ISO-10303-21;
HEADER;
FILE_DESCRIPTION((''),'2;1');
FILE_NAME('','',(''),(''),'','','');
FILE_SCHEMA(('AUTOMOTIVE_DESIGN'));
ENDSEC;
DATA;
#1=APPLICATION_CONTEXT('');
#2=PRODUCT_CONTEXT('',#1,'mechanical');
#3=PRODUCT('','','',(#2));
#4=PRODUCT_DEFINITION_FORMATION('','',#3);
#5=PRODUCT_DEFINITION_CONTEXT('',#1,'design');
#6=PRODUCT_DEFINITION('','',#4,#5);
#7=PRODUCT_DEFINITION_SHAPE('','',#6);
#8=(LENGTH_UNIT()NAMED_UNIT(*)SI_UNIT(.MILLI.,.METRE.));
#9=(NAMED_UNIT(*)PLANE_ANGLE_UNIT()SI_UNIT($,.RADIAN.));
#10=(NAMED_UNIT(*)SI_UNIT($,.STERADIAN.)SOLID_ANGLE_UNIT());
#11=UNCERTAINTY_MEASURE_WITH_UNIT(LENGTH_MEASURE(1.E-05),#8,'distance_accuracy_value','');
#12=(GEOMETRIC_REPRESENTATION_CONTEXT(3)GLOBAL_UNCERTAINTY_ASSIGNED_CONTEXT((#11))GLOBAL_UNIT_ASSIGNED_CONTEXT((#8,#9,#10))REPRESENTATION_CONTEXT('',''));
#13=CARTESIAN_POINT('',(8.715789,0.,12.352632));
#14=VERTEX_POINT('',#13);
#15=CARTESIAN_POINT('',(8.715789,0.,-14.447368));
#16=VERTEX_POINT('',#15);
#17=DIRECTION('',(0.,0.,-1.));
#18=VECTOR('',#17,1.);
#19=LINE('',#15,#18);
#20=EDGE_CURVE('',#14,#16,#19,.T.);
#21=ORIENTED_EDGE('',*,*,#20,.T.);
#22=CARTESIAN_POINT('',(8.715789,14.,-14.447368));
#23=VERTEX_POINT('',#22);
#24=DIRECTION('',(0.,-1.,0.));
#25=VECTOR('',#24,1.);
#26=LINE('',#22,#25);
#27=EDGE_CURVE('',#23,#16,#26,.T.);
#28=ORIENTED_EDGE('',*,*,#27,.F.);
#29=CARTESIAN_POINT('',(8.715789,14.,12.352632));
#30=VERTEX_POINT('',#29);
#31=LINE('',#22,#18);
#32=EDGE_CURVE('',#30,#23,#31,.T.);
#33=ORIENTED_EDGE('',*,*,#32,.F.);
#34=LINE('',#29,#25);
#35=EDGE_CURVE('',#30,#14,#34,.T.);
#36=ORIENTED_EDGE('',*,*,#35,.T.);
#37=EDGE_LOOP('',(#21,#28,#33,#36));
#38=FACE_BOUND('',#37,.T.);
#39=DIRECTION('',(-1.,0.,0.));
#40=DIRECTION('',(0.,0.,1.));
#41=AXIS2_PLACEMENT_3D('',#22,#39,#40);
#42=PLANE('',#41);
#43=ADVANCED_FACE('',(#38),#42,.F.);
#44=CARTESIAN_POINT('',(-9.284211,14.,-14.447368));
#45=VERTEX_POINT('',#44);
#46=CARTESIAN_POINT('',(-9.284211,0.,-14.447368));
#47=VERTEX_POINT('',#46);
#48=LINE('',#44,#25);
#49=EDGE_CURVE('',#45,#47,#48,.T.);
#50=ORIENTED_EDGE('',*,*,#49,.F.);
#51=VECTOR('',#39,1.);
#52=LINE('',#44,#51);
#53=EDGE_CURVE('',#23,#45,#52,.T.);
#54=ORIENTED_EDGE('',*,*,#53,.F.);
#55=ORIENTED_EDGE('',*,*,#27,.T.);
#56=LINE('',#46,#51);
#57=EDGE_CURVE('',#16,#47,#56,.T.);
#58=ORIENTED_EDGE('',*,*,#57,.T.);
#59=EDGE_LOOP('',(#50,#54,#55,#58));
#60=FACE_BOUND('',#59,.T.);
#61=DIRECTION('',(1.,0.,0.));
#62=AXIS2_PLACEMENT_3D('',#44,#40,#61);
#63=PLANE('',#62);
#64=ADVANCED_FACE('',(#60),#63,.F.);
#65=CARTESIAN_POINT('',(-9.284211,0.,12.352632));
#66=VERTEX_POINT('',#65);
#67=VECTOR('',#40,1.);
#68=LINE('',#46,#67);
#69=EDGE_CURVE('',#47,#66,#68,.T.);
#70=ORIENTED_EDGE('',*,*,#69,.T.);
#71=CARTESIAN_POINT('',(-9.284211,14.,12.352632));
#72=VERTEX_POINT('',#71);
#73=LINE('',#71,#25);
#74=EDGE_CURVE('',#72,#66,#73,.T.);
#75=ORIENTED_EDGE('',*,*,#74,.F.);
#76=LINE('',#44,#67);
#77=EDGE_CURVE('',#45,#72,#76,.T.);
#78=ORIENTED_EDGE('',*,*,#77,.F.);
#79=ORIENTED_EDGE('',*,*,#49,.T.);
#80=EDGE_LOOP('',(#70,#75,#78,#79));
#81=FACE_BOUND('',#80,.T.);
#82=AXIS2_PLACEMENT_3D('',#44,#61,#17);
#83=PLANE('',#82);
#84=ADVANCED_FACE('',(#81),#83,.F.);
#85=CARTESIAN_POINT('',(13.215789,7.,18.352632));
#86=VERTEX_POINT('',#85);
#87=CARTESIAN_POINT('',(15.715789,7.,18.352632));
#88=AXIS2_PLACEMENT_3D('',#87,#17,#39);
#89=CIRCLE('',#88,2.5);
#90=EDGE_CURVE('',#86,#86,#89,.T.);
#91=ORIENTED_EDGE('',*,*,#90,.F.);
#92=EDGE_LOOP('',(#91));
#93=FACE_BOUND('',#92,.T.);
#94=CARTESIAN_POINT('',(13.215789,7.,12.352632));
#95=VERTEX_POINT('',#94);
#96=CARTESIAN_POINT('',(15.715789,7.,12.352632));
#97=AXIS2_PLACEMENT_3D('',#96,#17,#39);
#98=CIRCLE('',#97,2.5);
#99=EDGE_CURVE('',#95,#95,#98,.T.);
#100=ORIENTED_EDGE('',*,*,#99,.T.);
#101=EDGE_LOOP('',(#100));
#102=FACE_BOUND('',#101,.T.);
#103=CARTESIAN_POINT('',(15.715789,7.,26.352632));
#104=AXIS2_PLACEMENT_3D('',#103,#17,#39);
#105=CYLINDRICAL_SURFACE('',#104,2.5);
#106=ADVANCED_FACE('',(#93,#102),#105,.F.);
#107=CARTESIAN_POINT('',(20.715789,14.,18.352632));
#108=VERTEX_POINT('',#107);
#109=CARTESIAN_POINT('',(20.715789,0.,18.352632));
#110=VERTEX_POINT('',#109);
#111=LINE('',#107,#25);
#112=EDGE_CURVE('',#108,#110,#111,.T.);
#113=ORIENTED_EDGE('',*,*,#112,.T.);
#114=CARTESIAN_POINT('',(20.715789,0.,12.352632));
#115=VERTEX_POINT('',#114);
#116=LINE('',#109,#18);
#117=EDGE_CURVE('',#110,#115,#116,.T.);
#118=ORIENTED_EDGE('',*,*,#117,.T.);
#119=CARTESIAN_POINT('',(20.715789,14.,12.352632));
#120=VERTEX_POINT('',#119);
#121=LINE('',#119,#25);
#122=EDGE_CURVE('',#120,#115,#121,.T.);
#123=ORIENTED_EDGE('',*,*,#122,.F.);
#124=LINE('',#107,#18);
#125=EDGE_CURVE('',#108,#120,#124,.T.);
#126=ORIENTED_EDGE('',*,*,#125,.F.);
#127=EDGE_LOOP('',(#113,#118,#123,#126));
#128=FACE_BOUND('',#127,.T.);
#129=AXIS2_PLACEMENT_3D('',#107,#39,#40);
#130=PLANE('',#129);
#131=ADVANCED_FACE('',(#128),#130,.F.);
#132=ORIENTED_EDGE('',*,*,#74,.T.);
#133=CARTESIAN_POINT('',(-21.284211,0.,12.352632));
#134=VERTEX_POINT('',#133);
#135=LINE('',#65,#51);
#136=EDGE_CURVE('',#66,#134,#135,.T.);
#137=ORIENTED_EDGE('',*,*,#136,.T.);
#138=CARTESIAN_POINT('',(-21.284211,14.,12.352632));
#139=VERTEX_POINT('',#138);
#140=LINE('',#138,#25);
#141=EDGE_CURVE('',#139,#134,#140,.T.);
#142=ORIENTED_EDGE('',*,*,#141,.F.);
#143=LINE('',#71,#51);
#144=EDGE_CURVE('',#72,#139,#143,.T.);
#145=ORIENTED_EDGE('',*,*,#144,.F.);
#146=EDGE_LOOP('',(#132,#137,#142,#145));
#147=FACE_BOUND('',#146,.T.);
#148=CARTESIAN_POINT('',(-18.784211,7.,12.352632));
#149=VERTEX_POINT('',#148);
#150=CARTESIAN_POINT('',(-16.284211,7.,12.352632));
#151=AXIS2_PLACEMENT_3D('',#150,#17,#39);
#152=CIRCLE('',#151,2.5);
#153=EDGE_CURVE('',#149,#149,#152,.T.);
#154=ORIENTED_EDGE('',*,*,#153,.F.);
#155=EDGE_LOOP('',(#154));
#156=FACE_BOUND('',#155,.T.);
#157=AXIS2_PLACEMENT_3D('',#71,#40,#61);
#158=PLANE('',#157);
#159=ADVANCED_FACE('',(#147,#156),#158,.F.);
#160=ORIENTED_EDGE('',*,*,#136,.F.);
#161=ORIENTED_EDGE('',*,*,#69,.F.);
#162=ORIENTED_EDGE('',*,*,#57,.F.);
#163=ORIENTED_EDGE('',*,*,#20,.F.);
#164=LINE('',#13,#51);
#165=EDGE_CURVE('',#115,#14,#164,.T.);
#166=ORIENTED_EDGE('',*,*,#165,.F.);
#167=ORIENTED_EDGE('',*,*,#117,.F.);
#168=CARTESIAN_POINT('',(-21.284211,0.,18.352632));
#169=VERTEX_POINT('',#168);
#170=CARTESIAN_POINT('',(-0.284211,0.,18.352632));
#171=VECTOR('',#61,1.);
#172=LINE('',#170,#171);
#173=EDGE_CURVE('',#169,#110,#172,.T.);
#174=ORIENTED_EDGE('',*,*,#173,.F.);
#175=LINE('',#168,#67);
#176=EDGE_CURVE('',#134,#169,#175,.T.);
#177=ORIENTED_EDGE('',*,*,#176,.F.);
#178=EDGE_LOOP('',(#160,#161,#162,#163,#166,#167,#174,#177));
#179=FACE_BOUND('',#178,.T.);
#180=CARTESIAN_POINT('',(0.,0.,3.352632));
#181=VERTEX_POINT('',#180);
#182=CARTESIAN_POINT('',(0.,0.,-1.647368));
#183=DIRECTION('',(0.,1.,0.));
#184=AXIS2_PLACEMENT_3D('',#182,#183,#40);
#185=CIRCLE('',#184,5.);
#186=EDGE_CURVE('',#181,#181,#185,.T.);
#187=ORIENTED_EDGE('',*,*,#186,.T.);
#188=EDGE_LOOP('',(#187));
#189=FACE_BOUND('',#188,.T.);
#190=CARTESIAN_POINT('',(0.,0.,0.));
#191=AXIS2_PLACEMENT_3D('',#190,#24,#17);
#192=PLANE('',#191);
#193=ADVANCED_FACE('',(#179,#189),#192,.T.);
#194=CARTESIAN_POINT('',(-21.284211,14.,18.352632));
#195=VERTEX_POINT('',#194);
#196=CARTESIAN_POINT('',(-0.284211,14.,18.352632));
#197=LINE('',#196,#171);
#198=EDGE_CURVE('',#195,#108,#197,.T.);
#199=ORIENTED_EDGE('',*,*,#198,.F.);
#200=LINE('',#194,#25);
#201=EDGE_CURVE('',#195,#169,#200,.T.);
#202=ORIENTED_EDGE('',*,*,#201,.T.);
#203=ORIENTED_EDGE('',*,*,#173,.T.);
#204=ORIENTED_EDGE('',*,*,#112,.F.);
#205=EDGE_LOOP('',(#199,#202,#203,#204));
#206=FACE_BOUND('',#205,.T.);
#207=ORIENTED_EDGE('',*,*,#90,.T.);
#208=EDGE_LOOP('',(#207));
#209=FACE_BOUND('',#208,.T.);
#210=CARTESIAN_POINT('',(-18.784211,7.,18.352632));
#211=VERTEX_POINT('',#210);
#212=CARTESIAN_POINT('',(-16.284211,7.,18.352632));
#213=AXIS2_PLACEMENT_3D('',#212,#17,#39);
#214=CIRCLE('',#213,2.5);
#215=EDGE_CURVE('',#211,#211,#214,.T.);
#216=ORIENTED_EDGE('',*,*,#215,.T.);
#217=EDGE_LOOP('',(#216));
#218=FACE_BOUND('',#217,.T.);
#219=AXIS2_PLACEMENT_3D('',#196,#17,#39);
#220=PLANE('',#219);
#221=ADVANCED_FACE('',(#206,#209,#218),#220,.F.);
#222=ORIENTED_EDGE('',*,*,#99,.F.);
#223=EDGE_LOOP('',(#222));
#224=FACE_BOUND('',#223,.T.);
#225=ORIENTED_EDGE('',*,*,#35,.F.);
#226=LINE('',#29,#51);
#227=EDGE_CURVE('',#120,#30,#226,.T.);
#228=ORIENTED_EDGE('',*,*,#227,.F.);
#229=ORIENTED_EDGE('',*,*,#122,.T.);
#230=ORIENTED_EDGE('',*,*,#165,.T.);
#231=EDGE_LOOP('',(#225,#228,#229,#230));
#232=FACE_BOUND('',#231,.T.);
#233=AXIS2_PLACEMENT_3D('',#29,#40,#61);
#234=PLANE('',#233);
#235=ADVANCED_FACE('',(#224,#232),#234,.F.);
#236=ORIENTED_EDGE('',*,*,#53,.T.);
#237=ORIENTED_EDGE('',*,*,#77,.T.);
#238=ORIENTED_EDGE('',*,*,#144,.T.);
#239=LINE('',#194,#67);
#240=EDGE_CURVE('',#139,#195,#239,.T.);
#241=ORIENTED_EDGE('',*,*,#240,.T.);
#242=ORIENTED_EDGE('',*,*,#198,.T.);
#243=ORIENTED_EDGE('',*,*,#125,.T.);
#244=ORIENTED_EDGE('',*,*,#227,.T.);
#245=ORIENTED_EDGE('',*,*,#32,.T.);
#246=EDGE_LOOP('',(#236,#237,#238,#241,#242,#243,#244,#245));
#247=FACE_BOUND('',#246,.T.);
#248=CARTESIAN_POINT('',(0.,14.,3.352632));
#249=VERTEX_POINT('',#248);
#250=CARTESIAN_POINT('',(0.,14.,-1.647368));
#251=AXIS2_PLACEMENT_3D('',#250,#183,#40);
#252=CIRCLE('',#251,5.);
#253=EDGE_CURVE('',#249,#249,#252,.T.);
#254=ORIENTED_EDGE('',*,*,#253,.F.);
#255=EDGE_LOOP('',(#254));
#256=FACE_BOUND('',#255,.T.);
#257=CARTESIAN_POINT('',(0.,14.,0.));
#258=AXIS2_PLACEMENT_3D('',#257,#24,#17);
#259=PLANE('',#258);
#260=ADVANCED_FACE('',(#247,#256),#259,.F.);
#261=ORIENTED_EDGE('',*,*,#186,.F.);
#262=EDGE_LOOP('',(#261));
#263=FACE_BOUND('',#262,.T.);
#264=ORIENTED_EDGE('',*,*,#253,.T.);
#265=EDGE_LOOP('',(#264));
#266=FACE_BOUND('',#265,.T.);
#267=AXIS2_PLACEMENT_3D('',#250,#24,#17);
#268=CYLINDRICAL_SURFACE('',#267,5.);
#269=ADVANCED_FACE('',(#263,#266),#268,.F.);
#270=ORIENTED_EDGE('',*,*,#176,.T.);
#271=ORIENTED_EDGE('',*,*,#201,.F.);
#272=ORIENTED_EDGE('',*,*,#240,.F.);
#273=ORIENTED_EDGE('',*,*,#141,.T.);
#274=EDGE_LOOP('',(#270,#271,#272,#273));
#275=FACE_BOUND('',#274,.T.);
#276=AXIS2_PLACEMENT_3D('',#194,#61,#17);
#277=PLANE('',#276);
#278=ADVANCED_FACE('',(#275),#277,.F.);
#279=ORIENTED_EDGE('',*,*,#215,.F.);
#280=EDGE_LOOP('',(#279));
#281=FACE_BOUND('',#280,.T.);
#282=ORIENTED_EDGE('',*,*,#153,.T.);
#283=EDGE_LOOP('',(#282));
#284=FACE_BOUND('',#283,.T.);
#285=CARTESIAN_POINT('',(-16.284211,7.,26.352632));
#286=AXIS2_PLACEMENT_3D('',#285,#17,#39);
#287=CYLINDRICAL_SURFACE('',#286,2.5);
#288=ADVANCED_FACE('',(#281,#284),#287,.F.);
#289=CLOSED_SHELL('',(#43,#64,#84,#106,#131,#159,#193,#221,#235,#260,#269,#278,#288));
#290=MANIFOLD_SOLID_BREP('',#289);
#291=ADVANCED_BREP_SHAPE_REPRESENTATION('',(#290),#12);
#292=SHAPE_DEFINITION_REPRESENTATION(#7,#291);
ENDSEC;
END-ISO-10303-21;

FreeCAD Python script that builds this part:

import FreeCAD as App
import Part
import Sketcher
Q = App.Units.Quantity

doc = App.newDocument("Part")
body = doc.addObject("PartDesign::Body", "Body")

# Sketch on XZ plane
sketch1 = body.newObject("Sketcher::SketchObject", "Sketch")
sketch1.AttachmentSupport = (doc.getObject("XZ_Plane"), [""])
sketch1.MapMode = "FlatFace"
sketch1.addGeometry(Part.LineSegment(App.Vector(8.715789, -14.447368, 0), App.Vector(-9.284211, -14.447368, 0)), False)
sketch1.addGeometry(Part.LineSegment(App.Vector(-9.284211, -14.447368, 0), App.Vector(-9.284211, 12.352632, 0)), False)
sketch1.addGeometry(Part.LineSegment(App.Vector(-9.284211, 12.352632, 0), App.Vector(-21.284211, 12.352632, 0)), False)
sketch1.addGeometry(Part.LineSegment(App.Vector(-21.284211, 12.352632, 0), App.Vector(-21.284211, 18.352632, 0)), False)
sketch1.addGeometry(Part.LineSegment(App.Vector(-21.284211, 18.352632, 0), App.Vector(20.715789, 18.352632, 0)), False)
sketch1.addGeometry(Part.LineSegment(App.Vector(20.715789, 18.352632, 0), App.Vector(20.715789, 12.352632, 0)), False)
sketch1.addGeometry(Part.LineSegment(App.Vector(20.715789, 12.352632, 0), App.Vector(8.715789, 12.352632, 0)), False)
sketch1.addGeometry(Part.LineSegment(App.Vector(8.715789, 12.352632, 0), App.Vector(8.715789, -14.447368, 0)), False)
sketch1.addGeometry(Part.Circle(App.Vector(0, -1.647368, 0), App.Vector(0, 0, 1), 5), False)
sketch1.addConstraint(Sketcher.Constraint("Coincident", 0, 2, 1, 1))
sketch1.addConstraint(Sketcher.Constraint("Coincident", 1, 2, 2, 1))
sketch1.addConstraint(Sketcher.Constraint("Coincident", 2, 2, 3, 1))
sketch1.addConstraint(Sketcher.Constraint("Coincident", 3, 2, 4, 1))
sketch1.addConstraint(Sketcher.Constraint("Coincident", 4, 2, 5, 1))
sketch1.addConstraint(Sketcher.Constraint("Coincident", 5, 2, 6, 1))
sketch1.addConstraint(Sketcher.Constraint("Coincident", 6, 2, 7, 1))
sketch1.addConstraint(Sketcher.Constraint("Coincident", 7, 2, 0, 1))
sketch1.addConstraint(Sketcher.Constraint("Horizontal", 0))
sketch1.addConstraint(Sketcher.Constraint("Vertical", 1))
sketch1.addConstraint(Sketcher.Constraint("Horizontal", 2))
sketch1.addConstraint(Sketcher.Constraint("Vertical", 3))
sketch1.addConstraint(Sketcher.Constraint("Horizontal", 4))
sketch1.addConstraint(Sketcher.Constraint("Vertical", 5))
sketch1.addConstraint(Sketcher.Constraint("Horizontal", 6))
sketch1.addConstraint(Sketcher.Constraint("Vertical", 7))
sketch1.addConstraint(Sketcher.Constraint("PointOnObject", 8, 3, -2))
sketch1.addConstraint(Sketcher.Constraint("Horizontal", 2, 2, 5, 2))
sketch1.addConstraint(Sketcher.Constraint("Equal", 2, 6))
sketch1.addConstraint(Sketcher.Constraint("Diameter", 8, Q("10 mm")))
sketch1.addConstraint(Sketcher.Constraint("DistanceX", 0, 2, 0, 1, Q("18 mm")))
sketch1.addConstraint(Sketcher.Constraint("DistanceX", 2, 2, 2, 1, Q("12 mm")))
sketch1.addConstraint(Sketcher.Constraint("DistanceY", 3, 1, 3, 2, Q("6 mm")))
sketch1.addConstraint(Sketcher.Constraint("DistanceY", 1, 1, 1, 2, Q("26.8 mm")))
sketch1.addConstraint(Sketcher.Constraint("DistanceY", 8, 3, 1, 2, Q("14 mm")))
sketch1.addConstraint(Sketcher.Constraint("DistanceY", 8, 3, -1, 1, Q("1.647368 mm")))
sketch1.addConstraint(Sketcher.Constraint("DistanceX", 0, 2, -1, 1, Q("9.284211 mm")))
pad1 = body.newObject("PartDesign::Pad", "Pad")
pad1.Profile = sketch1
pad1.Length = 14
pad1.Reversed = True

# Sketch on XY plane
sketch2 = body.newObject("Sketcher::SketchObject", "Sketch001")
sketch2.AttachmentSupport = (doc.getObject("XY_Plane"), [""])
sketch2.MapMode = "FlatFace"
sketch2.AttachmentOffset = App.Placement(App.Vector(0, 0, 12.352632), App.Rotation())
sketch2.addGeometry(Part.Circle(App.Vector(15.715789, 7, 0), App.Vector(0, 0, 1), 2.5), False)
sketch2.addGeometry(Part.Circle(App.Vector(-16.284211, 7, 0), App.Vector(0, 0, 1), 2.5), False)
sketch2.addConstraint(Sketcher.Constraint("Equal", 0, 1))
sketch2.addConstraint(Sketcher.Constraint("Horizontal", 0, 3, 1, 3))
sketch2.addConstraint(Sketcher.Constraint("Diameter", 0, Q("5 mm")))
sketch2.addConstraint(Sketcher.Constraint("DistanceY", -1, 1, 0, 3, Q("7 mm")))
sketch2.addConstraint(Sketcher.Constraint("DistanceX", 1, 3, 0, 3, Q("32 mm")))
sketch2.addConstraint(Sketcher.Constraint("DistanceX", -1, 1, 0, 3, Q("15.715789 mm")))
pocket1 = body.newObject("PartDesign::Pocket", "Pocket")
pocket1.Profile = sketch2
pocket1.Length = 14
pocket1.Reversed = True

doc.recompute()
